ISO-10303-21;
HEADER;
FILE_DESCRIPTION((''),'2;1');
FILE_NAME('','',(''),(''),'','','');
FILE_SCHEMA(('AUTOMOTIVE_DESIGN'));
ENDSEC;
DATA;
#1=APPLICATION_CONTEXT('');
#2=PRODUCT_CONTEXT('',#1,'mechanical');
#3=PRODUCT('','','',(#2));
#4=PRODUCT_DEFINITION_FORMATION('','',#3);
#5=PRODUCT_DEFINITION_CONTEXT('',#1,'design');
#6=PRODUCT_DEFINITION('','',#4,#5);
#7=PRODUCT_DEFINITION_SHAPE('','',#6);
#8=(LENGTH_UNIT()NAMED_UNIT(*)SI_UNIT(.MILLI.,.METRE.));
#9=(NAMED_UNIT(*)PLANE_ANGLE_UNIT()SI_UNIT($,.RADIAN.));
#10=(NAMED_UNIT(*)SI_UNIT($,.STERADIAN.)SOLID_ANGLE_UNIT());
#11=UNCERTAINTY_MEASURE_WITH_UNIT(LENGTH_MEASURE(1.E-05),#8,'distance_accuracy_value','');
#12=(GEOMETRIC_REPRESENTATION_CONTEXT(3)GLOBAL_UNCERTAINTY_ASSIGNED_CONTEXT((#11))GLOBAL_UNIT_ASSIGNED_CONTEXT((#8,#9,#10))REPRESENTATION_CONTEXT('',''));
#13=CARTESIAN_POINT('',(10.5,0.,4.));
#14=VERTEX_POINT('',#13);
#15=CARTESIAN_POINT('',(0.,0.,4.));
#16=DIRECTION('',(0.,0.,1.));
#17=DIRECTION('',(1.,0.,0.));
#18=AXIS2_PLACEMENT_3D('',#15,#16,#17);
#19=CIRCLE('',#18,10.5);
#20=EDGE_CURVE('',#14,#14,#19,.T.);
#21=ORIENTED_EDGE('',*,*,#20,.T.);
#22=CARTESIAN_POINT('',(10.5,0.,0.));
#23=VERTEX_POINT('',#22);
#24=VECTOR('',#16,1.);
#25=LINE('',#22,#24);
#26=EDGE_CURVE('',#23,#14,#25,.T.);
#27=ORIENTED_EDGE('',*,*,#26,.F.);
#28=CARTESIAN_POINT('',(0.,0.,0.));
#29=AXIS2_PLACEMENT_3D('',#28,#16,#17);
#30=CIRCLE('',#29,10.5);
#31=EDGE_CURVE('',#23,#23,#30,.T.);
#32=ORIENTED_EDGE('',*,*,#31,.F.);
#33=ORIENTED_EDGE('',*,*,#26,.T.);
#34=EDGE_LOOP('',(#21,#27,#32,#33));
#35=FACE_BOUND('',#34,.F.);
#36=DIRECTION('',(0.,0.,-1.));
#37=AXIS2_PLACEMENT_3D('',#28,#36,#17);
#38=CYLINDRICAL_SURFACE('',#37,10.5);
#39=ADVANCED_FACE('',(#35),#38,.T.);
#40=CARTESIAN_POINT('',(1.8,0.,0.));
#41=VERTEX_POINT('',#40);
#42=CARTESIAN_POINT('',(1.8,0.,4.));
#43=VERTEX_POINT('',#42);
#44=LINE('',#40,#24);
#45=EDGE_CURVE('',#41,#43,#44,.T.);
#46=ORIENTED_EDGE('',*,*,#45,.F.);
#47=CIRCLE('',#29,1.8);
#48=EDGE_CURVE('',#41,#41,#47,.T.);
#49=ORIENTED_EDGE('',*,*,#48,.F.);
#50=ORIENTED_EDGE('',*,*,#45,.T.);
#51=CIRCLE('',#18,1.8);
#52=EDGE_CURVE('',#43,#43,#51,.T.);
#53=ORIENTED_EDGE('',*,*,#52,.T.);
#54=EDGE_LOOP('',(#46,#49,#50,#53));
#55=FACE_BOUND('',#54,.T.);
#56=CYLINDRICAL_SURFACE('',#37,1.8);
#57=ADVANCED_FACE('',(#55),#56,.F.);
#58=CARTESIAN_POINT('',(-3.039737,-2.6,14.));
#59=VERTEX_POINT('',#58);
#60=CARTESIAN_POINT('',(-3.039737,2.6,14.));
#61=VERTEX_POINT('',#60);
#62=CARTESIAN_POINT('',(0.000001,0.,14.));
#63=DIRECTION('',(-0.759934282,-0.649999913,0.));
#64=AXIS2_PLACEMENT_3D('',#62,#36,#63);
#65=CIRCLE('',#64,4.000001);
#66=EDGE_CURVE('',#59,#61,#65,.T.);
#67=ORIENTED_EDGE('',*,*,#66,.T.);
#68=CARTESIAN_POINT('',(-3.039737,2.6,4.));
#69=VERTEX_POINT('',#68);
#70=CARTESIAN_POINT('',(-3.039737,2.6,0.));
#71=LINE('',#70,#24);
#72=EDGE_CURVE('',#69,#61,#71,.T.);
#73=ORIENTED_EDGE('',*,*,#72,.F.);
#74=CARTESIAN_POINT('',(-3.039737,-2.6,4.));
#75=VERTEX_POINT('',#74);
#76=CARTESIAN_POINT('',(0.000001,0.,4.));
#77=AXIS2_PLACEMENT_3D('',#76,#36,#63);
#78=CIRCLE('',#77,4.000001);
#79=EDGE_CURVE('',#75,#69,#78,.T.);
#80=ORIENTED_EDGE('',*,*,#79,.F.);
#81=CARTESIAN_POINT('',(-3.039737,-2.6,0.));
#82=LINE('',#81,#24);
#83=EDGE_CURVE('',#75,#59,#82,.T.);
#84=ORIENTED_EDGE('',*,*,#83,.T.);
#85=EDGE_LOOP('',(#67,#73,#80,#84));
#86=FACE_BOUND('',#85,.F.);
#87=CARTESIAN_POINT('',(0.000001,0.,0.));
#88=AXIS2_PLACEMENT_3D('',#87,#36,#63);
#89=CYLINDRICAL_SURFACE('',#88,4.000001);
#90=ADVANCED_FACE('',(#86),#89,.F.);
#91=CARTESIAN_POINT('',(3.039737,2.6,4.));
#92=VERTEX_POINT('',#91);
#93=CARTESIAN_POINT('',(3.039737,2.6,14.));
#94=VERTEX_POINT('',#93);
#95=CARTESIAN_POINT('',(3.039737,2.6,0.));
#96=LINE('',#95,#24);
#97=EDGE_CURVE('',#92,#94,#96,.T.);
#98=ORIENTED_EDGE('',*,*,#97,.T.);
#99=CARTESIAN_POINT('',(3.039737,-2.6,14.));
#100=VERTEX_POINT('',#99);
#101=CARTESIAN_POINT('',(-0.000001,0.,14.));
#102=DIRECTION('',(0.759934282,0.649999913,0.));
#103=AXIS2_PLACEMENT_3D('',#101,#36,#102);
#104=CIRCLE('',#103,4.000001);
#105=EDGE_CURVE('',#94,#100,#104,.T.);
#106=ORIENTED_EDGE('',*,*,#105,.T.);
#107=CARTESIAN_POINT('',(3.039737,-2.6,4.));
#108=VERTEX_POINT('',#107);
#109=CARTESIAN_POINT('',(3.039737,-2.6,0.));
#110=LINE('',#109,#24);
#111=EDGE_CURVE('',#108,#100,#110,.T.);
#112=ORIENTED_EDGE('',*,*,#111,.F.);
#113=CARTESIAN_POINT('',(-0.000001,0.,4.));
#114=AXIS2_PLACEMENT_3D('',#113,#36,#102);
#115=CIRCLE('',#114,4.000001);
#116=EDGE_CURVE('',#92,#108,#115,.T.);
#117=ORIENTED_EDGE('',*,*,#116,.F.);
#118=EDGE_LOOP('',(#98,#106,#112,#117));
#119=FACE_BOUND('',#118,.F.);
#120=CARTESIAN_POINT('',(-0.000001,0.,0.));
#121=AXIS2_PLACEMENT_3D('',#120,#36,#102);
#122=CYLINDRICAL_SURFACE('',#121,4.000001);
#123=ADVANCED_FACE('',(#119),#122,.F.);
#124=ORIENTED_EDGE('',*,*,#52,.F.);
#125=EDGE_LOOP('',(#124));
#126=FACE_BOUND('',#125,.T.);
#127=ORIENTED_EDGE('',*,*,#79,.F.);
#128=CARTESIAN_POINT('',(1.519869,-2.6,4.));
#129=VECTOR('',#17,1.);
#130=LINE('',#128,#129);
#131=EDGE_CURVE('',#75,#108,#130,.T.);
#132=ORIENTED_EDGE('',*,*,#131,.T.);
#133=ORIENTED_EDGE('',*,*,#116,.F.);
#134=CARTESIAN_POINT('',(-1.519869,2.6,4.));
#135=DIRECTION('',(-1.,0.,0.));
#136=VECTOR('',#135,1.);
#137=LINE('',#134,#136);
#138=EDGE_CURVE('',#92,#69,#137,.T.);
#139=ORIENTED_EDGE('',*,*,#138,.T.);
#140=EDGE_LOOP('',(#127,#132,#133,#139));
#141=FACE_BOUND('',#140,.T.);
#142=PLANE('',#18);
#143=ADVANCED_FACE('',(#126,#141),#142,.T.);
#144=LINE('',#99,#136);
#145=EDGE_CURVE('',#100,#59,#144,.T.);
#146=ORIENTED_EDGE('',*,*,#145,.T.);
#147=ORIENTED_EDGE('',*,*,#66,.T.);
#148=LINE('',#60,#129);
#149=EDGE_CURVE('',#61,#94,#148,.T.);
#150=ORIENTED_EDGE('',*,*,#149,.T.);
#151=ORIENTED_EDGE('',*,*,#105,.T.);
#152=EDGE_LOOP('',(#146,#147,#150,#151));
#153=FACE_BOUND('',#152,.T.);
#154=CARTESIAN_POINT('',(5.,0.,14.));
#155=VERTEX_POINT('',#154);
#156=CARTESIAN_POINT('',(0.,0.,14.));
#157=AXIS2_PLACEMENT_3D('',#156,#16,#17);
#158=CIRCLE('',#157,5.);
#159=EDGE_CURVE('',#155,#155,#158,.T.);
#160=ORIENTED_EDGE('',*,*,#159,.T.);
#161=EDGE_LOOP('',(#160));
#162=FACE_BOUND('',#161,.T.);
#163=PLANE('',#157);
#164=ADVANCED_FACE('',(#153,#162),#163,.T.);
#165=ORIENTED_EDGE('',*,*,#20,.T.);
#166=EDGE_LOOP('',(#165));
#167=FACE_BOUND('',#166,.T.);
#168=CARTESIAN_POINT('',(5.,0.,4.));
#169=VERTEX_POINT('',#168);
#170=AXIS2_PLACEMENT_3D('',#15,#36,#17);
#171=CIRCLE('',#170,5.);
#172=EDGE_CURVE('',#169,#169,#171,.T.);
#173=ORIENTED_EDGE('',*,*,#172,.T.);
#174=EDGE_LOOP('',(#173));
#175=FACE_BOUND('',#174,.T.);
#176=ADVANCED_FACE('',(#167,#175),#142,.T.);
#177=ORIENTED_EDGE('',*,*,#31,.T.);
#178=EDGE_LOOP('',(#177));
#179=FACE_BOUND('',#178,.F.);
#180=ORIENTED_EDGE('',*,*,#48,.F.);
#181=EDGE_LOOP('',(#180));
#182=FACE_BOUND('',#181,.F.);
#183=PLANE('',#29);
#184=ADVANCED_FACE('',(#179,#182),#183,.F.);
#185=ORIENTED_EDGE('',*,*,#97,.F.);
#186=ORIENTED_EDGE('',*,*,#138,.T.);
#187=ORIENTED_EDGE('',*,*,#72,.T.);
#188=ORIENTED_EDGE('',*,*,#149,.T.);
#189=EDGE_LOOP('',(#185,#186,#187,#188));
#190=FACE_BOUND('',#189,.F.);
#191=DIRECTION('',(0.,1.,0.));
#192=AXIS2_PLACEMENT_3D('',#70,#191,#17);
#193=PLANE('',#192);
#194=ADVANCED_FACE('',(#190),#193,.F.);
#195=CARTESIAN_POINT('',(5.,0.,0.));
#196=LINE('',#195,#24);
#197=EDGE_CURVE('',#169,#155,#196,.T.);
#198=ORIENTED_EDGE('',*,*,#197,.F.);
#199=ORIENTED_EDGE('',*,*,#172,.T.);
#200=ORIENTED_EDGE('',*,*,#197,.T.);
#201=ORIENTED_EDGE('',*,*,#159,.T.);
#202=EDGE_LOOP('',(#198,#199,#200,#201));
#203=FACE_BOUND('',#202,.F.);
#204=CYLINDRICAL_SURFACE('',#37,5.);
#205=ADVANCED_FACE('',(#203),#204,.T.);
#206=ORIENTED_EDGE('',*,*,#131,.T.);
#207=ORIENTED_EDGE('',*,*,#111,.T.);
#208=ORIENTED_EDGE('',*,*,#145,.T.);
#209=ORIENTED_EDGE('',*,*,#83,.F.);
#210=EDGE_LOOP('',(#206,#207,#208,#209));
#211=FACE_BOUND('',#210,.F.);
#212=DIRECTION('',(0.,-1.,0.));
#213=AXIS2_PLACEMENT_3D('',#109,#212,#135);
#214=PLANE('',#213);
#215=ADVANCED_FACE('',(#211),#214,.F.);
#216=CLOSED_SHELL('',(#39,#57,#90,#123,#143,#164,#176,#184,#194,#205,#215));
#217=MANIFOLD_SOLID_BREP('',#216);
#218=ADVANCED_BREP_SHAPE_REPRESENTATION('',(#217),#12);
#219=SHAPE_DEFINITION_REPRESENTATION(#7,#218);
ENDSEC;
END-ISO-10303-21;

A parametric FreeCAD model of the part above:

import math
import FreeCAD as App
import Part
import Sketcher

V = App.Vector

doc = App.newDocument("Part")
params = doc.addObject("Spreadsheet::Sheet", "Params")
for row, (alias, value) in enumerate([
    ("sketch1_diameter", "21 mm"),
    ("sketch1_diameter2", "3.6 mm"),
    ("pad1_length", "4 mm"),
    ("sketch2_diameter", "10 mm"),
    ("sketch2_radius", "4.000001 mm"),
    ("pad2_length", "14 mm"),
], start=1):
    params.set(f"A{row}", alias)
    params.set(f"B{row}", "=" + value)
    params.setAlias(f"B{row}", alias)

body = doc.addObject("PartDesign::Body", "Body")

# Sketch on XY plane
sketch1 = doc.addObject("Sketcher::SketchObject", "Sketch")
body.addObject(sketch1)
sketch1.AttachmentSupport = (doc.XY_Plane, [""])
sketch1.MapMode = "FlatFace"
sketch1.addGeometry(Part.Circle(V(0, 0, 0), V(0, 0, 1), 10.5), False)
sketch1.addGeometry(Part.Circle(V(0, 0, 0), V(0, 0, 1), 1.8), False)
sketch1.addConstraint(Sketcher.Constraint("Coincident", 0, 3, -1, 1))
sketch1.addConstraint(Sketcher.Constraint("Coincident", 1, 3, -1, 1))
sketch1.addConstraint(Sketcher.Constraint("Diameter", 0, 21.0))
sketch1.addConstraint(Sketcher.Constraint("Diameter", 1, 3.6))
sketch1.setExpression("Constraints[2]", "Params.sketch1_diameter")
sketch1.setExpression("Constraints[3]", "Params.sketch1_diameter2")
pad1 = doc.addObject("PartDesign::Pad", "Pad")
body.addObject(pad1)
pad1.Profile = sketch1
pad1.setExpression("Length", "Params.pad1_length")

# Sketch on XY plane
sketch2 = doc.addObject("Sketcher::SketchObject", "Sketch001")
body.addObject(sketch2)
sketch2.AttachmentSupport = (doc.XY_Plane, [""])
sketch2.MapMode = "FlatFace"
sketch2.addGeometry(Part.Circle(V(0, 0, 0), V(0, 0, 1), 5), False)
sketch2.addGeometry(Part.LineSegment(V(-3, 2.6, 0), V(3, 2.6, 0)), False)
sketch2.addGeometry(Part.ArcOfCircle(Part.Circle(V(0, 0, 0), V(0, 0, 1), 4), math.radians(-41), math.radians(41)), False)
sketch2.addGeometry(Part.LineSegment(V(3, -2.6, 0), V(-3, -2.6, 0)), False)
sketch2.addGeometry(Part.ArcOfCircle(Part.Circle(V(0, 0, 0), V(0, 0, 1), 4), math.radians(139), math.radians(221)), False)
sketch2.addConstraint(Sketcher.Constraint("Coincident", 1, 2, 2, 2))
sketch2.addConstraint(Sketcher.Constraint("Coincident", 2, 1, 3, 1))
sketch2.addConstraint(Sketcher.Constraint("Coincident", 3, 2, 4, 2))
sketch2.addConstraint(Sketcher.Constraint("Coincident", 4, 1, 1, 1))
sketch2.addConstraint(Sketcher.Constraint("Horizontal", 1))
sketch2.addConstraint(Sketcher.Constraint("Horizontal", 3))
sketch2.addConstraint(Sketcher.Constraint("Coincident", 0, 3, -1, 1))
sketch2.addConstraint(Sketcher.Constraint("Coincident", 2, 3, -1, 1))
sketch2.addConstraint(Sketcher.Constraint("Coincident", 4, 3, -1, 1))
sketch2.addConstraint(Sketcher.Constraint("Equal", 2, 4))
sketch2.addConstraint(Sketcher.Constraint("Vertical", 1, 2, 2, 1))
sketch2.addConstraint(Sketcher.Constraint("Diameter", 0, 10.0))
sketch2.addConstraint(Sketcher.Constraint("Radius", 2, 4.000001))
sketch2.addConstraint(Sketcher.Constraint("DistanceY", -1, 1, 1, 2, 2.6))
sketch2.setExpression("Constraints[11]", "Params.sketch2_diameter")
sketch2.setExpression("Constraints[12]", "Params.sketch2_radius")
pad2 = doc.addObject("PartDesign::Pad", "Pad001")
body.addObject(pad2)
pad2.Profile = sketch2
pad2.setExpression("Length", "Params.pad2_length")

doc.recompute()
